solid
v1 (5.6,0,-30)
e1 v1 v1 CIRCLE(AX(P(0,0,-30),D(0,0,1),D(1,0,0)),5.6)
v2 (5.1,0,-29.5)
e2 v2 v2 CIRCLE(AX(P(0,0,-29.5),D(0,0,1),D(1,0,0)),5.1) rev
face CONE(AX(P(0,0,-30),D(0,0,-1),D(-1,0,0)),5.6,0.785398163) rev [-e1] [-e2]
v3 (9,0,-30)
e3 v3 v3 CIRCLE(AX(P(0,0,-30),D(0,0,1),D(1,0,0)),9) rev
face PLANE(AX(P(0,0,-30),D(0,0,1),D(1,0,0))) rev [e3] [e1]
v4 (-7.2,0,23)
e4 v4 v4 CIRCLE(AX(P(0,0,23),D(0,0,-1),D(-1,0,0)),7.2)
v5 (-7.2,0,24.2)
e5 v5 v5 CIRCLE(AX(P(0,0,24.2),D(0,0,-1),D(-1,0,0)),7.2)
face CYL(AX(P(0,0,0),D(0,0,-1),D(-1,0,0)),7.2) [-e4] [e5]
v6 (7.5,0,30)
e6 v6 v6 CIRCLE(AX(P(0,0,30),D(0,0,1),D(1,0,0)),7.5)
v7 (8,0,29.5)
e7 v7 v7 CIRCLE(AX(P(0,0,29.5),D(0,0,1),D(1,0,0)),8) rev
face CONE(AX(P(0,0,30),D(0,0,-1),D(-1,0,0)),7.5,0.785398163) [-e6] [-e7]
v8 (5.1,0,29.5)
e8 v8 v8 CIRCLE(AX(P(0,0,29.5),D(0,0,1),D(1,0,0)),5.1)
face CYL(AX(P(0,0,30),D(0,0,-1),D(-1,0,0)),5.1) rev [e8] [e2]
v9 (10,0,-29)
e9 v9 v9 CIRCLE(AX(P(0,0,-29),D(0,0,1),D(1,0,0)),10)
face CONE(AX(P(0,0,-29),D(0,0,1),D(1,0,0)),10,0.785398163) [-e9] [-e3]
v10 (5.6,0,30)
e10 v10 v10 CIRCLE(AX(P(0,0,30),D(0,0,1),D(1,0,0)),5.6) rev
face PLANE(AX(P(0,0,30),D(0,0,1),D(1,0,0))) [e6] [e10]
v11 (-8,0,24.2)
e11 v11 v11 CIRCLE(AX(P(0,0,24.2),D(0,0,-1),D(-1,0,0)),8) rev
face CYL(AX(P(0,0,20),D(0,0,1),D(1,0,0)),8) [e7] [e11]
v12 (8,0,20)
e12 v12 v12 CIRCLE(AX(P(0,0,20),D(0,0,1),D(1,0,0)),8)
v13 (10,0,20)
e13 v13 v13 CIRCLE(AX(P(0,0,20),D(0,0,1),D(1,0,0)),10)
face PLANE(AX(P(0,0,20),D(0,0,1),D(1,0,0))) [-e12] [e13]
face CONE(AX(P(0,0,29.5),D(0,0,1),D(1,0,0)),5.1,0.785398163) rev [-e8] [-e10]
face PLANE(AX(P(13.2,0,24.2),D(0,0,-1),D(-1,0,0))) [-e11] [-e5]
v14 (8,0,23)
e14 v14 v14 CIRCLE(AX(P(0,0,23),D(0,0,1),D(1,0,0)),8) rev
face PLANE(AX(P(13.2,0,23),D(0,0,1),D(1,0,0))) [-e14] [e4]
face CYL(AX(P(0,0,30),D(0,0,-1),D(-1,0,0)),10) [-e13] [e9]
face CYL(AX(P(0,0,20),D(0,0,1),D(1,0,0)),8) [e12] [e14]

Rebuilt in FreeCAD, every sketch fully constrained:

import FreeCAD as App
import Part
import Sketcher


def edges_at(feature, points):
    """Names of the edges that pass closest to the given points."""
    edges = feature.Shape.Edges
    near = lambda p: min(range(len(edges)), key=lambda i: edges[i].distToShape(Part.Vertex(*p))[0])
    return sorted({f"Edge{near(p) + 1}" for p in points})


def add_polygon(sketch, points):
    """Adds a closed chain of lines whose ends are joined by coincident constraints."""
    first, n = sketch.GeometryCount, len(points)
    for a, b in zip(points, points[1:] + points[:1]):
        sketch.addGeometry(Part.LineSegment(App.Vector(*a, 0), App.Vector(*b, 0)), False)
    for i in range(n):
        sketch.addConstraint(Sketcher.Constraint("Coincident", first + i, 2, first + (i + 1) % n, 1))

doc = App.newDocument("Part")
params = doc.addObject("Spreadsheet::Sheet", "Params")
for row, (alias, value) in enumerate([
    ("sketch1_diameter", "20 mm"),
    ("sketch1_diameter2", "10.2 mm"),
    ("pad1_length", "60 mm"),
    ("sketch2_diameter", "16 mm"),
    ("pocket1_length", "10 mm"),
    ("chamfer_size", "0.5 mm"),
    ("sketch3_width", "6 mm"),
    ("sketch3_height", "1.2 mm"),
    ("groove_angle", "360 deg"),
    ("chamfer2_size", "1 mm"),
], start=1):
    params.set(f"A{row}", alias)
    params.set(f"B{row}", "=" + value)
    params.setAlias(f"B{row}", alias)

body = doc.addObject("PartDesign::Body", "Body")

# Sketch on XY plane
sketch1 = body.newObject("Sketcher::SketchObject", "Sketch")
sketch1.AttachmentSupport = (doc.getObject("XY_Plane"), [""])
sketch1.MapMode = "FlatFace"
sketch1.addGeometry([
    Part.Circle(App.Vector(0, 0, 0), App.Vector(0, 0, 1), 10),
    Part.Circle(App.Vector(0, 0, 0), App.Vector(0, 0, 1), 5.1),
], False)
sketch1.addConstraint([
    Sketcher.Constraint("Coincident", 0, 3, -1, 1),
    Sketcher.Constraint("Coincident", 1, 3, -1, 1),
    Sketcher.Constraint("Diameter", 0, 20.0),
    Sketcher.Constraint("Diameter", 1, 10.2),
])
sketch1.setExpression("Constraints[2]", "Params.sketch1_diameter")
sketch1.setExpression("Constraints[3]", "Params.sketch1_diameter2")
pad1 = body.newObject("PartDesign::Pad", "Pad")
pad1.Profile = sketch1
pad1.setExpression("Length", "Params.pad1_length")
pad1.Midplane = True

# Sketch on XY plane
sketch2 = body.newObject("Sketcher::SketchObject", "Sketch001")
sketch2.AttachmentSupport = (doc.getObject("XY_Plane"), [""])
sketch2.MapMode = "FlatFace"
sketch2.AttachmentOffset = App.Placement(App.Vector(0, 0, 30), App.Rotation())
add_polygon(sketch2, [(-17.633, 17.633), (-17.633, -17.633), (17.633, -17.633), (17.633, 17.633)])  # lines 0-3
sketch2.addGeometry(Part.Circle(App.Vector(0, 0, 0), App.Vector(0, 0, 1), 8), False)  # 4
sketch2.addConstraint([
    Sketcher.Constraint("Vertical", 0),
    Sketcher.Constraint("Horizontal", 1),
    Sketcher.Constraint("Vertical", 2),
    Sketcher.Constraint("Horizontal", 3),
    Sketcher.Constraint("Coincident", 4, 3, -1, 1),
    Sketcher.Constraint("Symmetric", 0, 2, 2, 2, -1, 1),
    Sketcher.Constraint("Equal", 3, 0),
    Sketcher.Constraint("Diameter", 4, 16.0),
    Sketcher.Constraint("DistanceX", 1, 1, 1, 2, 35.266),
])
sketch2.setExpression("Constraints[11]", "Params.sketch2_diameter")
pocket1 = body.newObject("PartDesign::Pocket", "Pocket")
pocket1.Profile = sketch2
pocket1.setExpression("Length", "Params.pocket1_length")
doc.recompute()

chamfer = body.newObject("PartDesign::Chamfer", "Chamfer")
chamfer.Base = (pocket1, edges_at(pocket1, [(-8, 0, 30), (-5.1, 0, -30), (-5.1, 0, 30)]))
chamfer.setExpression("Size", "Params.chamfer_size")

# Sketch on XZ plane
sketch3 = body.newObject("Sketcher::SketchObject", "Sketch002")
sketch3.AttachmentSupport = (doc.getObject("XZ_Plane"), [""])
sketch3.MapMode = "FlatFace"
add_polygon(sketch3, [(7.2, 23), (7.2, 24.2), (13.2, 24.2), (13.2, 23)])  # lines 0-3
sketch3.addConstraint([
    Sketcher.Constraint("Vertical", 0),
    Sketcher.Constraint("Horizontal", 1),
    Sketcher.Constraint("Vertical", 2),
    Sketcher.Constraint("Horizontal", 3),
    Sketcher.Constraint("DistanceX", 1, 1, 1, 2, 6.0),
    Sketcher.Constraint("DistanceY", 0, 1, 0, 2, 1.2),
    Sketcher.Constraint("DistanceY", -1, 1, 2, 2, 23.0),
    Sketcher.Constraint("DistanceX", -1, 1, 0, 2, 7.2),
])
sketch3.setExpression("Constraints[8]", "Params.sketch3_width")
sketch3.setExpression("Constraints[9]", "Params.sketch3_height")
groove = body.newObject("PartDesign::Groove", "Groove")
groove.Profile = sketch3
groove.ReferenceAxis = (sketch3, ["V_Axis"])
groove.setExpression("Angle", "Params.groove_angle")
doc.recompute()

chamfer2 = body.newObject("PartDesign::Chamfer", "Chamfer001")
chamfer2.Base = (groove, edges_at(groove, [(-10, 0, -30)]))
chamfer2.setExpression("Size", "Params.chamfer2_size")

doc.recompute()
